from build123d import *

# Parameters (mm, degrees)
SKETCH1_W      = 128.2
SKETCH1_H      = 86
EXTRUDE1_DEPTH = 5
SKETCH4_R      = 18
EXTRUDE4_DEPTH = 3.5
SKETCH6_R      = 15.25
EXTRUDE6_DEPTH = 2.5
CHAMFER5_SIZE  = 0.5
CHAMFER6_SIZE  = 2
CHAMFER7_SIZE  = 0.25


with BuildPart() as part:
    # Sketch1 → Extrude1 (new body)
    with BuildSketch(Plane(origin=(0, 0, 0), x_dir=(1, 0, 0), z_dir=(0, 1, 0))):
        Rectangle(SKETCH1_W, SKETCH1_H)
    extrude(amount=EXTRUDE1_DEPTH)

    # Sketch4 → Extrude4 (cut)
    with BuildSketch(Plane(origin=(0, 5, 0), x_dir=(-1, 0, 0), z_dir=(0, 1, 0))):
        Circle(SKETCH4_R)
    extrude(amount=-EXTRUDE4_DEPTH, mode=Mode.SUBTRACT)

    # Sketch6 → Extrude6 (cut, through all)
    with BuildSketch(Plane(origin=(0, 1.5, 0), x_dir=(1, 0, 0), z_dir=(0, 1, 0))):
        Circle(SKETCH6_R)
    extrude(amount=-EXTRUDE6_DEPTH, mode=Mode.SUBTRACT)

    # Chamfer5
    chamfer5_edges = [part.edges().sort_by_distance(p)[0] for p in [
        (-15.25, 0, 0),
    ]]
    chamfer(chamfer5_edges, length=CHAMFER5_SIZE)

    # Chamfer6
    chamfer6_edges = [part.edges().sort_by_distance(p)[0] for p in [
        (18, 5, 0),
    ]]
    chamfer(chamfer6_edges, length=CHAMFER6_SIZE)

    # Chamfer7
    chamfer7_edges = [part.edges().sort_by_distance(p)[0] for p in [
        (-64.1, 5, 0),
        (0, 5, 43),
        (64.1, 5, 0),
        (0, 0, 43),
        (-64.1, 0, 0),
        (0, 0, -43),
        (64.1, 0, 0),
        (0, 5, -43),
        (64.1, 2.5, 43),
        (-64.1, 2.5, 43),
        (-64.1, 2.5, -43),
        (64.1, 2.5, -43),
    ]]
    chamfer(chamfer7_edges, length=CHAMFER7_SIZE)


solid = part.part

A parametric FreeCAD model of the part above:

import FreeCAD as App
import Part
import Sketcher


def edges_at(feature, points):
    """Names of the edges that pass closest to the given points."""
    edges = feature.Shape.Edges
    near = lambda p: min(range(len(edges)), key=lambda i: edges[i].distToShape(Part.Vertex(*p))[0])
    return sorted({f"Edge{near(p) + 1}" for p in points})


def add_polygon(sketch, points):
    """Adds a closed chain of lines whose ends are joined by coincident constraints."""
    first, n = sketch.GeometryCount, len(points)
    for a, b in zip(points, points[1:] + points[:1]):
        sketch.addGeometry(Part.LineSegment(App.Vector(*a, 0), App.Vector(*b, 0)), False)
    for i in range(n):
        sketch.addConstraint(Sketcher.Constraint("Coincident", first + i, 2, first + (i + 1) % n, 1))

doc = App.newDocument("Part")
body = doc.addObject("PartDesign::Body", "Body")

sketch1 = doc.addObject("Sketcher::SketchObject", "Sketch")
body.addObject(sketch1)
sketch1.AttachmentSupport = (doc.XZ_Plane, [""])
sketch1.MapMode = "FlatFace"
add_polygon(sketch1, [(-64, -43), (-64, 43), (64, 43), (64, -43)])
sketch1.addConstraint([
    Sketcher.Constraint("Vertical", 0),
    Sketcher.Constraint("Horizontal", 1),
    Sketcher.Constraint("Vertical", 2),
    Sketcher.Constraint("Horizontal", 3),
    Sketcher.Constraint("Symmetric", 0, 2, 2, 2, -1, 1),
    Sketcher.Constraint("DistanceY", 0, 1, 0, 2, 86.0),
    Sketcher.Constraint("DistanceX", 1, 1, 1, 2, 128.2),
])
pad1 = doc.addObject("PartDesign::Pad", "Pad")
body.addObject(pad1)
pad1.Profile = sketch1
pad1.Length = 5
pad1.Reversed = True

sketch2 = doc.addObject("Sketcher::SketchObject", "Sketch001")
body.addObject(sketch2)
sketch2.AttachmentSupport = (doc.XZ_Plane, [""])
sketch2.MapMode = "FlatFace"
sketch2.AttachmentOffset = App.Placement(App.Vector(0, 0, -5), App.Rotation())
sketch2.addGeometry(Part.Circle(App.Vector(0, 0, 0), App.Vector(0, 0, 1), 18), False)
sketch2.addConstraint([
    Sketcher.Constraint("Coincident", 0, 3, -1, 1),
    Sketcher.Constraint("Diameter", 0, 36.0),
])
pocket1 = doc.addObject("PartDesign::Pocket", "Pocket")
body.addObject(pocket1)
pocket1.Profile = sketch2
pocket1.Length = 3.5
pocket1.Reversed = True

sketch3 = doc.addObject("Sketcher::SketchObject", "Sketch002")
body.addObject(sketch3)
sketch3.AttachmentSupport = (doc.XZ_Plane, [""])
sketch3.MapMode = "FlatFace"
sketch3.AttachmentOffset = App.Placement(App.Vector(0, 0, -1.5), App.Rotation())
sketch3.addGeometry(Part.Circle(App.Vector(0, 0, 0), App.Vector(0, 0, 1), 15), False)
sketch3.addConstraint([
    Sketcher.Constraint("Coincident", 0, 3, -1, 1),
    Sketcher.Constraint("Diameter", 0, 30.5),
])
pocket2 = doc.addObject("PartDesign::Pocket", "Pocket001")
body.addObject(pocket2)
pocket2.Profile = sketch3
pocket2.Type = "ThroughAll"
pocket2.Reversed = True
doc.recompute()

chamfer = doc.addObject("PartDesign::Chamfer", "Chamfer")
body.addObject(chamfer)
chamfer.Base = (pocket2, edges_at(pocket2, [(-15.25, 0, 0)]))
chamfer.Size = 0.5
doc.recompute()

chamfer2 = doc.addObject("PartDesign::Chamfer", "Chamfer001")
body.addObject(chamfer2)
chamfer2.Base = (chamfer, edges_at(chamfer, [(18, 5, 0)]))
chamfer2.Size = 2
doc.recompute()

chamfer3 = doc.addObject("PartDesign::Chamfer", "Chamfer002")
body.addObject(chamfer3)
chamfer3.Base = (chamfer2, edges_at(chamfer2, [
    (-64.1, 5, 0),
    (0, 5, 43),
    (64.1, 5, 0),
    (0, 0, 43),
    (-64.1, 0, 0),
    (0, 0, -43),
    (64.1, 0, 0),
    (0, 5, -43),
    (64.1, 2.5, 43),
    (-64.1, 2.5, 43),
    (-64.1, 2.5, -43),
    (64.1, 2.5, -43),
]))
chamfer3.Size = 0.25

doc.recompute()
